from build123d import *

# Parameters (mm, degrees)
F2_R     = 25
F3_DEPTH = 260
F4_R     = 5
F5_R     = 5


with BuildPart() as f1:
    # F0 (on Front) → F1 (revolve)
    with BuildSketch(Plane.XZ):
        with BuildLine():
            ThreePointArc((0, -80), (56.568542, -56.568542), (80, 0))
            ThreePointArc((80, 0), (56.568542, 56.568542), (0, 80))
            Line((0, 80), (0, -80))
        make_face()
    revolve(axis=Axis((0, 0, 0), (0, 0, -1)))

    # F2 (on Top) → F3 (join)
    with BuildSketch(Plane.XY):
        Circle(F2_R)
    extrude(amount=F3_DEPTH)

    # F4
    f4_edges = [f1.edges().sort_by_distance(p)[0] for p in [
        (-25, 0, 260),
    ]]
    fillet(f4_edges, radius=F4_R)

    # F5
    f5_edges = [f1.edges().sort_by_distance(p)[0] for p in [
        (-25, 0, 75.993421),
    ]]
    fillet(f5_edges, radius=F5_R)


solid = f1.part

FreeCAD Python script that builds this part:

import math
import FreeCAD as App
import Part
import Sketcher

V = App.Vector


def edges_at(feature, points):
    """Names of the edges that pass closest to the given points."""
    edges = feature.Shape.Edges
    near = lambda p: min(range(len(edges)), key=lambda i: edges[i].distToShape(Part.Vertex(*p))[0])
    return sorted({f"Edge{near(p) + 1}" for p in points})

doc = App.newDocument("Part")
body = doc.addObject("PartDesign::Body", "Body")

sketch1 = body.newObject("Sketcher::SketchObject", "Sketch")
sketch1.AttachmentSupport = (doc.getObject("XZ_Plane"), [""])
sketch1.MapMode = "FlatFace"
sketch1.addGeometry([
    Part.ArcOfCircle(Part.Circle(V(0, 0, 0), V(0, 0, 1), 80), math.radians(-90), math.radians(0)),
    Part.ArcOfCircle(Part.Circle(V(0, 0, 0), V(0, 0, 1), 80), math.radians(0), math.radians(90)),
    Part.LineSegment(V(0, 80, 0), V(0, -80, 0)),
], False)
sketch1.addConstraint([
    Sketcher.Constraint("Tangent", 0, 2, 1, 1),
    Sketcher.Constraint("Coincident", 1, 2, 2, 1),
    Sketcher.Constraint("Coincident", 2, 2, 0, 1),
    Sketcher.Constraint("Vertical", 2),
    Sketcher.Constraint("Coincident", 0, 3, -1, 1),
    Sketcher.Constraint("Equal", 0, 1),
    Sketcher.Constraint("PointOnObject", 0, 2, -1),
    Sketcher.Constraint("PointOnObject", 1, 2, -2),
    Sketcher.Constraint("Radius", 0, 80.000002),
])
revolution = body.newObject("PartDesign::Revolution", "Revolution")
revolution.Profile = sketch1
revolution.ReferenceAxis = (sketch1, ["V_Axis"])
revolution.Angle = 360

sketch2 = body.newObject("Sketcher::SketchObject", "Sketch001")
sketch2.AttachmentSupport = (doc.getObject("XY_Plane"), [""])
sketch2.MapMode = "FlatFace"
sketch2.addGeometry(Part.Circle(V(0, 0, 0), V(0, 0, 1), 25), False)
sketch2.addConstraint([
    Sketcher.Constraint("Coincident", 0, 3, -1, 1),
    Sketcher.Constraint("Diameter", 0, 50.0),
])
pad1 = body.newObject("PartDesign::Pad", "Pad")
pad1.Profile = sketch2
pad1.Length = 260
doc.recompute()

fillet = body.newObject("PartDesign::Fillet", "Fillet")
fillet.Base = (pad1, edges_at(pad1, [(-25, 0, 260)]))
fillet.Radius = 5
doc.recompute()

fillet2 = body.newObject("PartDesign::Fillet", "Fillet001")
fillet2.Base = (fillet, edges_at(fillet, [(-25, 0, 75.993)]))
fillet2.Radius = 5

doc.recompute()
